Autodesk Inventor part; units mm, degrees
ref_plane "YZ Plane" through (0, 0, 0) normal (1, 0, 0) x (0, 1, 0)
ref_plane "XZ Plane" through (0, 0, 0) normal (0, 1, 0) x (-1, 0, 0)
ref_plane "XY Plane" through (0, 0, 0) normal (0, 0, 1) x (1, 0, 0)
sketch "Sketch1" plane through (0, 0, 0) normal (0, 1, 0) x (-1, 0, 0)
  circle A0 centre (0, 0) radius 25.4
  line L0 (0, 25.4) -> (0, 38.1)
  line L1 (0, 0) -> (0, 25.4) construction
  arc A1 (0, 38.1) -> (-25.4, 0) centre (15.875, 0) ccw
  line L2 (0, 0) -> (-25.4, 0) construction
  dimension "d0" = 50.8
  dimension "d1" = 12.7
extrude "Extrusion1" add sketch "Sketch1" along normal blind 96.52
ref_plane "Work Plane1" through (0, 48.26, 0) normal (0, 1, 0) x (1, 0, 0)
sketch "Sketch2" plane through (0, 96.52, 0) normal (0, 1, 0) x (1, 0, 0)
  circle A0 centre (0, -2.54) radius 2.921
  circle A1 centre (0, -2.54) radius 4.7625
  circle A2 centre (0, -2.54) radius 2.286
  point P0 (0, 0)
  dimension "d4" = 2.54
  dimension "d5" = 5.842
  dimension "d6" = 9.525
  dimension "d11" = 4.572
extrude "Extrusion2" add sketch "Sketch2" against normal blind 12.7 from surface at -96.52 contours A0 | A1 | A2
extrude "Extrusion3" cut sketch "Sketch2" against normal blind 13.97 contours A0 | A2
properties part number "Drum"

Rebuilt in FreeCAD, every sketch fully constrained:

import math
import FreeCAD as App
import Part
import Sketcher
Q = App.Units.Quantity

doc = App.newDocument("Part")
body = doc.addObject("PartDesign::Body", "Body")

sketch1 = body.newObject("Sketcher::SketchObject", "Sketch")
sketch1.AttachmentSupport = (doc.getObject("XZ_Plane"), [""])
sketch1.MapMode = "FlatFace"
sketch1.addGeometry(Part.ArcOfCircle(Part.Circle(App.Vector(0, 0, 0), App.Vector(0, 0, 1), 25), math.radians(90), math.radians(360)), False)
sketch1.addGeometry(Part.LineSegment(App.Vector(0, 25, 0), App.Vector(0, 38, 0)), False)
sketch1.addGeometry(Part.ArcOfCircle(Part.Circle(App.Vector(-16, 0, 0), App.Vector(0, 0, 1), 41), math.radians(0), math.radians(67)), False)
sketch1.addConstraint(Sketcher.Constraint("Coincident", 0, 1, 1, 1))
sketch1.addConstraint(Sketcher.Constraint("Coincident", 1, 2, 2, 2))
sketch1.addConstraint(Sketcher.Constraint("Tangent", 2, 1, 0, 2))
sketch1.addConstraint(Sketcher.Constraint("Vertical", 1))
sketch1.addConstraint(Sketcher.Constraint("Coincident", 0, 3, -1, 1))
sketch1.addConstraint(Sketcher.Constraint("PointOnObject", 2, 3, -1))
sketch1.addConstraint(Sketcher.Constraint("PointOnObject", 0, 1, -2))
sketch1.addConstraint(Sketcher.Constraint("Radius", 0, Q("1 in")))
sketch1.addConstraint(Sketcher.Constraint("DistanceY", 1, 1, 1, 2, Q("0.5 in")))
pad1 = body.newObject("PartDesign::Pad", "Pad")
pad1.Profile = sketch1
pad1.Length = Q("3.8 in")
pad1.Reversed = True

sketch2 = body.newObject("Sketcher::SketchObject", "Sketch001")
sketch2.AttachmentSupport = (doc.getObject("XZ_Plane"), [""])
sketch2.MapMode = "FlatFace"
sketch2.addGeometry(Part.Circle(App.Vector(0, 2.5, 0), App.Vector(0, 0, 1), 4.8), False)
sketch2.addConstraint(Sketcher.Constraint("PointOnObject", 0, 3, -2))
sketch2.addConstraint(Sketcher.Constraint("Diameter", 0, Q("0.375 in")))
sketch2.addConstraint(Sketcher.Constraint("DistanceY", -1, 1, 0, 3, Q("0.1 in")))
pad2 = body.newObject("PartDesign::Pad", "Pad001")
pad2.Profile = sketch2
pad2.Length = Q("0.5 in")

sketch3 = body.newObject("Sketcher::SketchObject", "Sketch002")
sketch3.AttachmentSupport = (doc.getObject("XZ_Plane"), [""])
sketch3.MapMode = "FlatFace"
sketch3.AttachmentOffset = App.Placement(App.Vector(0, 0, -3.8 * 25.4), App.Rotation())
sketch3.addGeometry(Part.Circle(App.Vector(0, 2.5, 0), App.Vector(0, 0, 1), 2.9), False)
sketch3.addConstraint(Sketcher.Constraint("PointOnObject", 0, 3, -2))
sketch3.addConstraint(Sketcher.Constraint("Diameter", 0, Q("0.23 in")))
sketch3.addConstraint(Sketcher.Constraint("DistanceY", -1, 1, 0, 3, Q("0.1 in")))
pocket1 = body.newObject("PartDesign::Pocket", "Pocket")
pocket1.Profile = sketch3
pocket1.Length = Q("0.55 in")
pocket1.Reversed = True

doc.recompute()
